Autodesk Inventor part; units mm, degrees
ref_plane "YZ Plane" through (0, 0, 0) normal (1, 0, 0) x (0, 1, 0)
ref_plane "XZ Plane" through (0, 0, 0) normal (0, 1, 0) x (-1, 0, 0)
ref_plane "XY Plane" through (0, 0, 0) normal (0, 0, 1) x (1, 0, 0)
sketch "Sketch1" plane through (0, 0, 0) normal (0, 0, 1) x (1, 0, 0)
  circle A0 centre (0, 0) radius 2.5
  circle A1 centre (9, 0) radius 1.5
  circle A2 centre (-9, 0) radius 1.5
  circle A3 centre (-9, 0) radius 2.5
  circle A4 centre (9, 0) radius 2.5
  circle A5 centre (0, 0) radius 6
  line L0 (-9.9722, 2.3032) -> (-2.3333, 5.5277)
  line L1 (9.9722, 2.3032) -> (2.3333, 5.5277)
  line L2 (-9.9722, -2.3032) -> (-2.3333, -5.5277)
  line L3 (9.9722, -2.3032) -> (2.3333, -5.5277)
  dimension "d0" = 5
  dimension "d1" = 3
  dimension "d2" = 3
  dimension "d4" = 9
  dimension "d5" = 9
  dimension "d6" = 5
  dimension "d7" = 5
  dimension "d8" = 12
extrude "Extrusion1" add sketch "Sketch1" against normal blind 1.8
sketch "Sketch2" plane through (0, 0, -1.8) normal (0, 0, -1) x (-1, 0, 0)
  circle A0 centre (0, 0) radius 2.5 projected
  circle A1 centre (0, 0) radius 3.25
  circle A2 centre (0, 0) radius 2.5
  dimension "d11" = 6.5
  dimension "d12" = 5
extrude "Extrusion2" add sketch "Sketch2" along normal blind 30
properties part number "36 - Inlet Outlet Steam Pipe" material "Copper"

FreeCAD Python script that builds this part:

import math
import FreeCAD as App
import Part
import Sketcher
from FreeCAD import Vector
Q = App.Units.Quantity

doc = App.newDocument("Part")
body = doc.addObject("PartDesign::Body", "Body")

sketch1 = body.newObject("Sketcher::SketchObject", "Sketch")
sketch1.AttachmentSupport = (doc.getObject("XY_Plane"), [""])
sketch1.MapMode = "FlatFace"
sketch1.addGeometry(Part.ArcOfCircle(Part.Circle(Vector(-9, 0, 0), Vector(0, 0, 1), 2.5), math.radians(113), math.radians(247)), False)
sketch1.addGeometry(Part.LineSegment(Vector(-10, -2.3, 0), Vector(-2.3, -5.5, 0)), False)
sketch1.addGeometry(Part.ArcOfCircle(Part.Circle(Vector(0, 0, 0), Vector(0, 0, 1), 6), math.radians(-113), math.radians(-67)), False)
sketch1.addGeometry(Part.LineSegment(Vector(2.3, -5.5, 0), Vector(10, -2.3, 0)), False)
sketch1.addGeometry(Part.ArcOfCircle(Part.Circle(Vector(9, 0, 0), Vector(0, 0, 1), 2.5), math.radians(-67), math.radians(67)), False)
sketch1.addGeometry(Part.LineSegment(Vector(10, 2.3, 0), Vector(2.3, 5.5, 0)), False)
sketch1.addGeometry(Part.ArcOfCircle(Part.Circle(Vector(0, 0, 0), Vector(0, 0, 1), 6), math.radians(67), math.radians(113)), False)
sketch1.addGeometry(Part.LineSegment(Vector(-2.3, 5.5, 0), Vector(-10, 2.3, 0)), False)
sketch1.addGeometry(Part.Circle(Vector(-9, 0, 0), Vector(0, 0, 1), 1.5), False)
sketch1.addGeometry(Part.Circle(Vector(0, 0, 0), Vector(0, 0, 1), 2.5), False)
sketch1.addGeometry(Part.Circle(Vector(9, 0, 0), Vector(0, 0, 1), 1.5), False)
sketch1.addConstraint(Sketcher.Constraint("Tangent", 0, 2, 1, 1))
sketch1.addConstraint(Sketcher.Constraint("Tangent", 1, 2, 2, 1))
sketch1.addConstraint(Sketcher.Constraint("Tangent", 2, 2, 3, 1))
sketch1.addConstraint(Sketcher.Constraint("Tangent", 3, 2, 4, 1))
sketch1.addConstraint(Sketcher.Constraint("Tangent", 4, 2, 5, 1))
sketch1.addConstraint(Sketcher.Constraint("Tangent", 5, 2, 6, 1))
sketch1.addConstraint(Sketcher.Constraint("Tangent", 6, 2, 7, 1))
sketch1.addConstraint(Sketcher.Constraint("Tangent", 7, 2, 0, 1))
sketch1.addConstraint(Sketcher.Constraint("Coincident", 2, 3, -1, 1))
sketch1.addConstraint(Sketcher.Constraint("Coincident", 6, 3, -1, 1))
sketch1.addConstraint(Sketcher.Constraint("Coincident", 9, 3, -1, 1))
sketch1.addConstraint(Sketcher.Constraint("Coincident", 8, 3, 0, 3))
sketch1.addConstraint(Sketcher.Constraint("Coincident", 10, 3, 4, 3))
sketch1.addConstraint(Sketcher.Constraint("Equal", 0, 4))
sketch1.addConstraint(Sketcher.Constraint("Equal", 2, 6))
sketch1.addConstraint(Sketcher.Constraint("Equal", 4, 9))
sketch1.addConstraint(Sketcher.Constraint("Equal", 8, 10))
sketch1.addConstraint(Sketcher.Constraint("Symmetric", 0, 3, 4, 3, -1, 1))
sketch1.addConstraint(Sketcher.Constraint("PointOnObject", 0, 3, -1))
sketch1.addConstraint(Sketcher.Constraint("Diameter", 8, Q("3 mm")))
sketch1.addConstraint(Sketcher.Constraint("Diameter", 9, Q("5 mm")))
sketch1.addConstraint(Sketcher.Constraint("Radius", 2, Q("6 mm")))
sketch1.addConstraint(Sketcher.Constraint("DistanceX", 0, 3, -1, 1, Q("9 mm")))
pad1 = body.newObject("PartDesign::Pad", "Pad")
pad1.Profile = sketch1
pad1.Length = 1.8
pad1.Reversed = True

sketch2 = body.newObject("Sketcher::SketchObject", "Sketch001")
sketch2.AttachmentSupport = (doc.getObject("XY_Plane"), [""])
sketch2.MapMode = "FlatFace"
sketch2.AttachmentOffset = App.Placement(Vector(0, 0, -1.8), App.Rotation())
sketch2.addGeometry(Part.Circle(Vector(0, 0, 0), Vector(0, 0, 1), 3.2), False)
sketch2.addGeometry(Part.Circle(Vector(0, 0, 0), Vector(0, 0, 1), 2.5), False)
sketch2.addConstraint(Sketcher.Constraint("Coincident", 0, 3, -1, 1))
sketch2.addConstraint(Sketcher.Constraint("Coincident", 1, 3, -1, 1))
sketch2.addConstraint(Sketcher.Constraint("Diameter", 1, Q("5 mm")))
sketch2.addConstraint(Sketcher.Constraint("Diameter", 0, Q("6.5 mm")))
pad2 = body.newObject("PartDesign::Pad", "Pad001")
pad2.Profile = sketch2
pad2.Length = 30
pad2.Reversed = True

doc.recompute()
